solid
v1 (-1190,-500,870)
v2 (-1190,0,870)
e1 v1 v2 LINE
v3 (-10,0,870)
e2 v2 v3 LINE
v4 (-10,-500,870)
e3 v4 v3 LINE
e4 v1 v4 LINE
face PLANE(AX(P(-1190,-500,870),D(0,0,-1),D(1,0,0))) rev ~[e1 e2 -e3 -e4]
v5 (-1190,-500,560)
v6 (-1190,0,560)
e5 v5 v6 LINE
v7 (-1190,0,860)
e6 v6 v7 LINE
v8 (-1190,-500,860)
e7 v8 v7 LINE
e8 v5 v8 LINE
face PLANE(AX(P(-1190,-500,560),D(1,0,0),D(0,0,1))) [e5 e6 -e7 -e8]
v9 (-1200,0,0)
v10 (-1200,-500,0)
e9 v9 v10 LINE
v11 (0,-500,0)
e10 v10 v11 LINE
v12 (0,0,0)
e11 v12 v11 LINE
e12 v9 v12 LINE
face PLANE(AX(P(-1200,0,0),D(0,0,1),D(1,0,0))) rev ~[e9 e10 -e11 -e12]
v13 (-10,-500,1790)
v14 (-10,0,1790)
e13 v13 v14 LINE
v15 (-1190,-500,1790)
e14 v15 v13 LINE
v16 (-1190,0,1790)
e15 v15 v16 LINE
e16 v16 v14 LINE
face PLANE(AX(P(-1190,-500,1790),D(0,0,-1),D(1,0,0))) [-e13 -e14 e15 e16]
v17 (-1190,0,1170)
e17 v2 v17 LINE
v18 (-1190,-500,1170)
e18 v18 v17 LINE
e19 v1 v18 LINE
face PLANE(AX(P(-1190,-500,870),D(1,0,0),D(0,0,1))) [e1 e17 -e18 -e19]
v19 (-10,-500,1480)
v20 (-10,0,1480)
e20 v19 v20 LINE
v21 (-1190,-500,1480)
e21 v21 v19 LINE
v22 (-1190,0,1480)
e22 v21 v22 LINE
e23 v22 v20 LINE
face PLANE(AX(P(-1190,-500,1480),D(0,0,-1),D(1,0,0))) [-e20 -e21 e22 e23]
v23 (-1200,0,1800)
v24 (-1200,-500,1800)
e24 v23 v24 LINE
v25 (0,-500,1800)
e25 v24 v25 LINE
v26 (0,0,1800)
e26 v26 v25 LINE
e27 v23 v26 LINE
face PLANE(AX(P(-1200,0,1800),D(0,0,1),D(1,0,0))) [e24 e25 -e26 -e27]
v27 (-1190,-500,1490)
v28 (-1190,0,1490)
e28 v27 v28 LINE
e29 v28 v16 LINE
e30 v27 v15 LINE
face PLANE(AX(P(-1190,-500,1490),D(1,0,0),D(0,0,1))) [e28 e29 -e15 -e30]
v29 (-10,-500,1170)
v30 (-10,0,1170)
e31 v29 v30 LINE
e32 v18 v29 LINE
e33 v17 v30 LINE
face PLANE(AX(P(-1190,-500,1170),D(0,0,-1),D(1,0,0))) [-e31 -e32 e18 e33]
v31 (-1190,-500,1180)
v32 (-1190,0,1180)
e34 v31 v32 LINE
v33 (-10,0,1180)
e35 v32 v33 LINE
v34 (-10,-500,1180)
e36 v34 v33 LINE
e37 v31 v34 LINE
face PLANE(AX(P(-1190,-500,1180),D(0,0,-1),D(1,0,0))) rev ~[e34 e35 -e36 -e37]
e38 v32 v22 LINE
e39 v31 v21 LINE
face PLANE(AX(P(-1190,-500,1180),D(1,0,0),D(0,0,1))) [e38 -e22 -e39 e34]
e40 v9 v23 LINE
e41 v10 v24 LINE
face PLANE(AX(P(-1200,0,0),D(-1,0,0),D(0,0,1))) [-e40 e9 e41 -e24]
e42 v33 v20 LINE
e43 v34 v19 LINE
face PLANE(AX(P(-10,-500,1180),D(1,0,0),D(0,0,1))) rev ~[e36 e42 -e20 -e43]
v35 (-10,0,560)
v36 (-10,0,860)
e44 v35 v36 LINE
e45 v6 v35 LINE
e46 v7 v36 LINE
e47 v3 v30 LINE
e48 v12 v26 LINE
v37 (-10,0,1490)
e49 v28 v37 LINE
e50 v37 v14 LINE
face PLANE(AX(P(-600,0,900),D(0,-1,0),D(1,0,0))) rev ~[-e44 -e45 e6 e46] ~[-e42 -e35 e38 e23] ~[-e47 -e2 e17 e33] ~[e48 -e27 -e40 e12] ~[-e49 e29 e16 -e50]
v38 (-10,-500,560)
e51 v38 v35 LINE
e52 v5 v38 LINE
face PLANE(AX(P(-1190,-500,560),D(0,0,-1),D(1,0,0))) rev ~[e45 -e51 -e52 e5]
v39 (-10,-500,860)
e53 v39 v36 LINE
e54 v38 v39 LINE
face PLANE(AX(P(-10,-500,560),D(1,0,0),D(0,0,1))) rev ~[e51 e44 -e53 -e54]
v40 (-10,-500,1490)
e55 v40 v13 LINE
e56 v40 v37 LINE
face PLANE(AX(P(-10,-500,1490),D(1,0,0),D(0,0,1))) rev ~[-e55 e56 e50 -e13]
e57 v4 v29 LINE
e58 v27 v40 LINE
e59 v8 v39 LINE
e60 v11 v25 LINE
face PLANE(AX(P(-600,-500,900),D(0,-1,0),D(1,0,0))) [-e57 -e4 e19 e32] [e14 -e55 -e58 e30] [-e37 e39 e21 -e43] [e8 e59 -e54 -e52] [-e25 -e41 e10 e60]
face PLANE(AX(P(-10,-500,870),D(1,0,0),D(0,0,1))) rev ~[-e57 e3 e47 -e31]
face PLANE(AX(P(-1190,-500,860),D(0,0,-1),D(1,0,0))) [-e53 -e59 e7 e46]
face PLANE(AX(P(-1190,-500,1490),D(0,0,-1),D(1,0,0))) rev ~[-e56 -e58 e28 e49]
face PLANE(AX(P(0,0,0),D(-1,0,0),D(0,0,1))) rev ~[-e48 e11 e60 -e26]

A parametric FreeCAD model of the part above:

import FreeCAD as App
import Part
import Sketcher
from FreeCAD import Vector

doc = App.newDocument("Part")
body = doc.addObject("PartDesign::Body", "Body")

# Sketch on XZ plane
sketch1 = doc.addObject("Sketcher::SketchObject", "Sketch")
body.addObject(sketch1)
sketch1.AttachmentSupport = (doc.XZ_Plane, [""])
sketch1.MapMode = "FlatFace"
sketch1.addGeometry([
    Part.LineSegment(Vector(-1200, 1800, 0), Vector(-1200, 0, 0)),
    Part.LineSegment(Vector(-1200, 0, 0), Vector(0, 0, 0)),
    Part.LineSegment(Vector(0, 0, 0), Vector(0, 1800, 0)),
    Part.LineSegment(Vector(0, 1800, 0), Vector(-1200, 1800, 0)),
], False)
sketch1.addConstraint([
    Sketcher.Constraint("Coincident", 0, 2, 1, 1),
    Sketcher.Constraint("Coincident", 1, 2, 2, 1),
    Sketcher.Constraint("Coincident", 2, 2, 3, 1),
    Sketcher.Constraint("Coincident", 3, 2, 0, 1),
    Sketcher.Constraint("Vertical", 0),
    Sketcher.Constraint("Horizontal", 1),
    Sketcher.Constraint("Vertical", 2),
    Sketcher.Constraint("Horizontal", 3),
    Sketcher.Constraint("Coincident", 1, 2, -1, 1),
    Sketcher.Constraint("DistanceX", 1, 1, 1, 2, 1200.0),
    Sketcher.Constraint("DistanceY", 0, 2, 0, 1, 1800.0),
])
pad1 = doc.addObject("PartDesign::Pad", "Pad")
body.addObject(pad1)
pad1.Profile = sketch1
pad1.Length = 500

# Sketch on XZ plane
sketch2 = doc.addObject("Sketcher::SketchObject", "Sketch001")
body.addObject(sketch2)
sketch2.AttachmentSupport = (doc.XZ_Plane, [""])
sketch2.MapMode = "FlatFace"
sketch2.AttachmentOffset = App.Placement(Vector(0, 0, 500), App.Rotation())
sketch2.addGeometry([
    Part.LineSegment(Vector(-1190, 1790, 0), Vector(-1190, 1490, 0)),  # 0
    Part.LineSegment(Vector(-1190, 1490, 0), Vector(-10, 1490, 0)),  # 1
    Part.LineSegment(Vector(-10, 1490, 0), Vector(-10, 1790, 0)),  # 2
    Part.LineSegment(Vector(-10, 1790, 0), Vector(-1190, 1790, 0)),  # 3
    Part.LineSegment(Vector(-1190, 1480, 0), Vector(-1190, 1180, 0)),  # 4
    Part.LineSegment(Vector(-1190, 1180, 0), Vector(-10, 1180, 0)),  # 5
    Part.LineSegment(Vector(-10, 1180, 0), Vector(-10, 1480, 0)),  # 6
    Part.LineSegment(Vector(-10, 1480, 0), Vector(-1190, 1480, 0)),  # 7
    Part.LineSegment(Vector(-1190, 1170, 0), Vector(-1190, 870, 0)),  # 8
    Part.LineSegment(Vector(-1190, 870, 0), Vector(-10, 870, 0)),  # 9
    Part.LineSegment(Vector(-10, 870, 0), Vector(-10, 1170, 0)),  # 10
    Part.LineSegment(Vector(-10, 1170, 0), Vector(-1190, 1170, 0)),  # 11
    Part.LineSegment(Vector(-1190, 860, 0), Vector(-1190, 560, 0)),  # 12
    Part.LineSegment(Vector(-1190, 560, 0), Vector(-10, 560, 0)),  # 13
    Part.LineSegment(Vector(-10, 560, 0), Vector(-10, 860, 0)),  # 14
    Part.LineSegment(Vector(-10, 860, 0), Vector(-1190, 860, 0)),  # 15
], False)
sketch2.addConstraint([
    Sketcher.Constraint("Coincident", 0, 2, 1, 1),
    Sketcher.Constraint("Coincident", 1, 2, 2, 1),
    Sketcher.Constraint("Coincident", 2, 2, 3, 1),
    Sketcher.Constraint("Coincident", 3, 2, 0, 1),
    Sketcher.Constraint("Coincident", 4, 2, 5, 1),
    Sketcher.Constraint("Coincident", 5, 2, 6, 1),
    Sketcher.Constraint("Coincident", 6, 2, 7, 1),
    Sketcher.Constraint("Coincident", 7, 2, 4, 1),
    Sketcher.Constraint("Coincident", 8, 2, 9, 1),
    Sketcher.Constraint("Coincident", 9, 2, 10, 1),
    Sketcher.Constraint("Coincident", 10, 2, 11, 1),
    Sketcher.Constraint("Coincident", 11, 2, 8, 1),
    Sketcher.Constraint("Coincident", 12, 2, 13, 1),
    Sketcher.Constraint("Coincident", 13, 2, 14, 1),
    Sketcher.Constraint("Coincident", 14, 2, 15, 1),
    Sketcher.Constraint("Coincident", 15, 2, 12, 1),
    Sketcher.Constraint("Vertical", 0),
    Sketcher.Constraint("Horizontal", 1),
    Sketcher.Constraint("Vertical", 2),
    Sketcher.Constraint("Horizontal", 3),
    Sketcher.Constraint("Vertical", 4),
    Sketcher.Constraint("Horizontal", 5),
    Sketcher.Constraint("Vertical", 6),
    Sketcher.Constraint("Horizontal", 7),
    Sketcher.Constraint("Vertical", 8),
    Sketcher.Constraint("Horizontal", 9),
    Sketcher.Constraint("Vertical", 10),
    Sketcher.Constraint("Horizontal", 11),
    Sketcher.Constraint("Vertical", 12),
    Sketcher.Constraint("Horizontal", 13),
    Sketcher.Constraint("Vertical", 14),
    Sketcher.Constraint("Horizontal", 15),
    Sketcher.Constraint("Vertical", 3, 2, 4, 2),
    Sketcher.Constraint("Vertical", 2, 2, 5, 2),
    Sketcher.Constraint("Vertical", 7, 2, 8, 2),
    Sketcher.Constraint("Vertical", 6, 2, 9, 2),
    Sketcher.Constraint("Vertical", 11, 2, 12, 2),
    Sketcher.Constraint("Vertical", 10, 2, 13, 2),
    Sketcher.Constraint("Equal", 2, 4),
    Sketcher.Constraint("Equal", 6, 8),
    Sketcher.Constraint("Equal", 10, 12),
    Sketcher.Constraint("DistanceX", 1, 1, 1, 2, 1180.0),
    Sketcher.Constraint("DistanceY", 0, 2, 0, 1, 300.0),
    Sketcher.Constraint("DistanceX", 0, 2, -1, 1, 1190.0),
    Sketcher.Constraint("DistanceY", -1, 1, 0, 2, 1490.0),
    Sketcher.Constraint("DistanceY", -1, 1, 4, 2, 1180.0),
    Sketcher.Constraint("DistanceY", -1, 1, 8, 2, 870.0),
    Sketcher.Constraint("DistanceY", -1, 1, 12, 2, 560.0),
])
pocket1 = doc.addObject("PartDesign::Pocket", "Pocket")
body.addObject(pocket1)
pocket1.Profile = sketch2
pocket1.Type = "ThroughAll"

doc.recompute()
